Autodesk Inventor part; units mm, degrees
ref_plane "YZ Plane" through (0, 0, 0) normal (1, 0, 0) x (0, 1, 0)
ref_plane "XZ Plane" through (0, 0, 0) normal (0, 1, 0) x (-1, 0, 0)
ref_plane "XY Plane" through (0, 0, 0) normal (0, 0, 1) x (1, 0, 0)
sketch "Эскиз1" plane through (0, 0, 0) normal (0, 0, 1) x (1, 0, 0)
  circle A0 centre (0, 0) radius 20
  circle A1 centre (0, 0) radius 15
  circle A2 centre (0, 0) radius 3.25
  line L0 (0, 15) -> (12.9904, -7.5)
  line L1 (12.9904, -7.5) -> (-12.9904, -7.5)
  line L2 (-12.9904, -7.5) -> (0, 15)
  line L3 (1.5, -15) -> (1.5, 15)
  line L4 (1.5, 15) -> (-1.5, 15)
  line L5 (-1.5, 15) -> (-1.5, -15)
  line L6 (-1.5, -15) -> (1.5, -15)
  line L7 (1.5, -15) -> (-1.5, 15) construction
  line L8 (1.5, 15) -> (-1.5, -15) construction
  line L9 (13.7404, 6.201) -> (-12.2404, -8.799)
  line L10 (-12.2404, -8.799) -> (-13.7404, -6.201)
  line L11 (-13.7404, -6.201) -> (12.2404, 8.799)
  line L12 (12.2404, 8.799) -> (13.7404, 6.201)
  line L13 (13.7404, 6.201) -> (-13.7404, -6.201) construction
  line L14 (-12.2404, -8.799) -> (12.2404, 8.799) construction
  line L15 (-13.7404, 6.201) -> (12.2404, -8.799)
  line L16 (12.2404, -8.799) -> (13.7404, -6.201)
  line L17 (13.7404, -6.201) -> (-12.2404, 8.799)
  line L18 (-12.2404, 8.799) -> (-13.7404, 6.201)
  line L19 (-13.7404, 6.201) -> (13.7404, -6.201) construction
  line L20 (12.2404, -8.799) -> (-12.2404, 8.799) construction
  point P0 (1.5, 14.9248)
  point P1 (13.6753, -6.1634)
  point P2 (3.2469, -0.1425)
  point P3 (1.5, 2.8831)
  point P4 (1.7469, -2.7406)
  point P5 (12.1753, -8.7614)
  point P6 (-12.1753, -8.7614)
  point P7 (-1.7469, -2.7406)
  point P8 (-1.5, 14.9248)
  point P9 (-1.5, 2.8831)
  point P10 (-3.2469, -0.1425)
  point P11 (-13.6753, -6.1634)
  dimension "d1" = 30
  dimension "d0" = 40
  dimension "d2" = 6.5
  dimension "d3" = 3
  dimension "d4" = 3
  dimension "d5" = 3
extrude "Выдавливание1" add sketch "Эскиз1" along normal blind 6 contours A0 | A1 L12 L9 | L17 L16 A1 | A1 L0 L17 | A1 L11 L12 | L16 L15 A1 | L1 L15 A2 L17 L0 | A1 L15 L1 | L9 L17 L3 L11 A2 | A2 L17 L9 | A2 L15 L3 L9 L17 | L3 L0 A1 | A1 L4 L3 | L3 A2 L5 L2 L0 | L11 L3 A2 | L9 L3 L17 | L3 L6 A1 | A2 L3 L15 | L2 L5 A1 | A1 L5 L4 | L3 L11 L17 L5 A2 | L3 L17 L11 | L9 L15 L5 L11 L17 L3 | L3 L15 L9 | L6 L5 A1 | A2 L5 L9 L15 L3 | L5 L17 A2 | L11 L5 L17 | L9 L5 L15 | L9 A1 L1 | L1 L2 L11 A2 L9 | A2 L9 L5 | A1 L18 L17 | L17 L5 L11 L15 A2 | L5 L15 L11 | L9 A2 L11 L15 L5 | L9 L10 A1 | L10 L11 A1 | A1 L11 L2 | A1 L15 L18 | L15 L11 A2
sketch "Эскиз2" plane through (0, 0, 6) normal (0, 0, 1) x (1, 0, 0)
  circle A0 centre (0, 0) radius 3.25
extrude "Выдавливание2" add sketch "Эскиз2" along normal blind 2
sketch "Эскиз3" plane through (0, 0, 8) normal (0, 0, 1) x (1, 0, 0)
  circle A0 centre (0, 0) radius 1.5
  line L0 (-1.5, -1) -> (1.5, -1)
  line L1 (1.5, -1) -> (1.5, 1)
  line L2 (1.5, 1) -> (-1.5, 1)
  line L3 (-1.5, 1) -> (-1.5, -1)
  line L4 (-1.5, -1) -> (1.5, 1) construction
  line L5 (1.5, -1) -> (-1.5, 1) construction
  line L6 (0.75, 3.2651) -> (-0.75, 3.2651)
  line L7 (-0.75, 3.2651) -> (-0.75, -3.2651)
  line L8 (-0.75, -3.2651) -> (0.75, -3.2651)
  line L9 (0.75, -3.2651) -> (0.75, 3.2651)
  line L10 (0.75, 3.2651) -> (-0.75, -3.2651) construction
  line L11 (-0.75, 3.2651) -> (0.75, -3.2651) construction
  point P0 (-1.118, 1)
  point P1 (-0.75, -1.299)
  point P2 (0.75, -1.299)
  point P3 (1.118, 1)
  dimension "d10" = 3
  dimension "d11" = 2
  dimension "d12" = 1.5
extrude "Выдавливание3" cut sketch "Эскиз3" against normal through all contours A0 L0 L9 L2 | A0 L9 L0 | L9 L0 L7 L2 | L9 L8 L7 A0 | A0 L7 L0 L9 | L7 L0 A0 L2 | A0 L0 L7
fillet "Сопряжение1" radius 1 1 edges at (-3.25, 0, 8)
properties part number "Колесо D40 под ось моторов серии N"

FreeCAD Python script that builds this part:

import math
import FreeCAD as App
import Part
import Sketcher
from FreeCAD import Vector
Q = App.Units.Quantity


def edges_at(feature, points):
    """Names of the edges that pass closest to the given points."""
    edges = feature.Shape.Edges
    near = lambda p: min(range(len(edges)), key=lambda i: edges[i].distToShape(Part.Vertex(*p))[0])
    return sorted({f"Edge{near(p) + 1}" for p in points})

doc = App.newDocument("Part")
body = doc.addObject("PartDesign::Body", "Body")

# Sketch on XY plane
sketch1 = doc.addObject("Sketcher::SketchObject", "Sketch")
body.addObject(sketch1)
sketch1.AttachmentSupport = (doc.XY_Plane, [""])
sketch1.MapMode = "FlatFace"
sketch1.addGeometry(Part.Circle(Vector(0, 0, 0), Vector(0, 0, 1), 20), False)
sketch1.addGeometry(Part.LineSegment(Vector(13.7, -6.2, 0), Vector(3.2, -0.1, 0)), False)
sketch1.addGeometry(Part.ArcOfCircle(Part.Circle(Vector(0, 0, 0), Vector(0, 0, 1), 3.2), math.radians(-3), math.radians(63)), False)
sketch1.addGeometry(Part.LineSegment(Vector(1.5, 2.9, 0), Vector(1.5, 14.9, 0)), False)
sketch1.addGeometry(Part.ArcOfCircle(Part.Circle(Vector(0, 0, 0), Vector(0, 0, 1), 15), math.radians(-24), math.radians(84)), False)
sketch1.addGeometry(Part.LineSegment(Vector(-1.5, 14.9, 0), Vector(-1.5, 2.9, 0)), False)
sketch1.addGeometry(Part.ArcOfCircle(Part.Circle(Vector(0, 0, 0), Vector(0, 0, 1), 3.2), math.radians(117), math.radians(183)), False)
sketch1.addGeometry(Part.LineSegment(Vector(-3.2, -0.1, 0), Vector(-13.7, -6.2, 0)), False)
sketch1.addGeometry(Part.ArcOfCircle(Part.Circle(Vector(0, 0, 0), Vector(0, 0, 1), 15), math.radians(96), math.radians(204)), False)
sketch1.addGeometry(Part.LineSegment(Vector(-12.2, -8.8, 0), Vector(-1.7, -2.7, 0)), False)
sketch1.addGeometry(Part.ArcOfCircle(Part.Circle(Vector(0, 0, 0), Vector(0, 0, 1), 3.2), math.radians(-123), math.radians(-57)), False)
sketch1.addGeometry(Part.LineSegment(Vector(1.7, -2.7, 0), Vector(12.2, -8.8, 0)), False)
sketch1.addGeometry(Part.ArcOfCircle(Part.Circle(Vector(0, 0, 0), Vector(0, 0, 1), 15), math.radians(-144), math.radians(-36)), False)
sketch1.addConstraint(Sketcher.Constraint("Coincident", 1, 2, 2, 1))
sketch1.addConstraint(Sketcher.Constraint("Coincident", 2, 2, 3, 1))
sketch1.addConstraint(Sketcher.Constraint("Coincident", 3, 2, 4, 2))
sketch1.addConstraint(Sketcher.Constraint("Coincident", 4, 1, 1, 1))
sketch1.addConstraint(Sketcher.Constraint("Coincident", 5, 2, 6, 1))
sketch1.addConstraint(Sketcher.Constraint("Coincident", 6, 2, 7, 1))
sketch1.addConstraint(Sketcher.Constraint("Coincident", 7, 2, 8, 2))
sketch1.addConstraint(Sketcher.Constraint("Coincident", 8, 1, 5, 1))
sketch1.addConstraint(Sketcher.Constraint("Coincident", 9, 2, 10, 1))
sketch1.addConstraint(Sketcher.Constraint("Coincident", 10, 2, 11, 1))
sketch1.addConstraint(Sketcher.Constraint("Coincident", 11, 2, 12, 2))
sketch1.addConstraint(Sketcher.Constraint("Coincident", 12, 1, 9, 1))
sketch1.addConstraint(Sketcher.Constraint("Vertical", 3))
sketch1.addConstraint(Sketcher.Constraint("Vertical", 5))
sketch1.addConstraint(Sketcher.Constraint("Coincident", 0, 3, -1, 1))
sketch1.addConstraint(Sketcher.Constraint("Coincident", 2, 3, -1, 1))
sketch1.addConstraint(Sketcher.Constraint("Coincident", 4, 3, -1, 1))
sketch1.addConstraint(Sketcher.Constraint("Coincident", 6, 3, -1, 1))
sketch1.addConstraint(Sketcher.Constraint("Coincident", 8, 3, -1, 1))
sketch1.addConstraint(Sketcher.Constraint("Coincident", 10, 3, -1, 1))
sketch1.addConstraint(Sketcher.Constraint("Coincident", 12, 3, -1, 1))
sketch1.addConstraint(Sketcher.Constraint("Equal", 2, 6))
sketch1.addConstraint(Sketcher.Constraint("Equal", 4, 8))
sketch1.addConstraint(Sketcher.Constraint("Equal", 6, 10))
sketch1.addConstraint(Sketcher.Constraint("Equal", 8, 12))
sketch1.addConstraint(Sketcher.Constraint("Parallel", 7, 9))
sketch1.addConstraint(Sketcher.Constraint("Parallel", 1, 11))
sketch1.addConstraint(Sketcher.Constraint("Horizontal", 2, 2, 5, 2))
sketch1.addConstraint(Sketcher.Constraint("Horizontal", 1, 2, 6, 2))
sketch1.addConstraint(Sketcher.Constraint("Horizontal", 4, 1, 7, 2))
sketch1.addConstraint(Sketcher.Constraint("Horizontal", 9, 2, 10, 2))
sketch1.addConstraint(Sketcher.Constraint("Equal", 7, 9))
sketch1.addConstraint(Sketcher.Constraint("Diameter", 0, Q("40 mm")))
sketch1.addConstraint(Sketcher.Constraint("Radius", 4, Q("15 mm")))
sketch1.addConstraint(Sketcher.Constraint("Angle", 9, Q("30 deg")))
sketch1.addConstraint(Sketcher.Constraint("Radius", 2, Q("3.25 mm")))
sketch1.addConstraint(Sketcher.Constraint("DistanceX", 5, 2, 2, 2, Q("3 mm")))
sketch1.addConstraint(Sketcher.Constraint("DistanceX", 6, 2, 9, 2, Q("1.5 mm")))
pad1 = doc.addObject("PartDesign::Pad", "Pad")
body.addObject(pad1)
pad1.Profile = sketch1
pad1.Length = 6

# Sketch on XY plane
sketch2 = doc.addObject("Sketcher::SketchObject", "Sketch001")
body.addObject(sketch2)
sketch2.AttachmentSupport = (doc.XY_Plane, [""])
sketch2.MapMode = "FlatFace"
sketch2.AttachmentOffset = App.Placement(Vector(0, 0, 6), App.Rotation())
sketch2.addGeometry(Part.Circle(Vector(0, 0, 0), Vector(0, 0, 1), 3.2), False)
sketch2.addConstraint(Sketcher.Constraint("Coincident", 0, 3, -1, 1))
sketch2.addConstraint(Sketcher.Constraint("Diameter", 0, Q("6.5 mm")))
pad2 = doc.addObject("PartDesign::Pad", "Pad001")
body.addObject(pad2)
pad2.Profile = sketch2
pad2.Length = 2

# Sketch on XY plane
sketch3 = doc.addObject("Sketcher::SketchObject", "Sketch002")
body.addObject(sketch3)
sketch3.AttachmentSupport = (doc.XY_Plane, [""])
sketch3.MapMode = "FlatFace"
sketch3.AttachmentOffset = App.Placement(Vector(0, 0, 8), App.Rotation())
sketch3.addGeometry(Part.LineSegment(Vector(1.1, 1, 0), Vector(-1.1, 1, 0)), False)
sketch3.addGeometry(Part.ArcOfCircle(Part.Circle(Vector(0, 0, 0), Vector(0, 0, 1), 1.5), math.radians(138), math.radians(240)), False)
sketch3.addGeometry(Part.LineSegment(Vector(-0.8, -1.3, 0), Vector(-0.8, -3.3, 0)), False)
sketch3.addGeometry(Part.LineSegment(Vector(-0.8, -3.3, 0), Vector(0.8, -3.3, 0)), False)
sketch3.addGeometry(Part.LineSegment(Vector(0.8, -3.3, 0), Vector(0.8, -1.3, 0)), False)
sketch3.addGeometry(Part.ArcOfCircle(Part.Circle(Vector(0, 0, 0), Vector(0, 0, 1), 1.5), math.radians(-60), math.radians(42)), False)
sketch3.addConstraint(Sketcher.Constraint("Coincident", 0, 2, 1, 1))
sketch3.addConstraint(Sketcher.Constraint("Coincident", 1, 2, 2, 1))
sketch3.addConstraint(Sketcher.Constraint("Coincident", 2, 2, 3, 1))
sketch3.addConstraint(Sketcher.Constraint("Coincident", 3, 2, 4, 1))
sketch3.addConstraint(Sketcher.Constraint("Coincident", 4, 2, 5, 1))
sketch3.addConstraint(Sketcher.Constraint("Coincident", 5, 2, 0, 1))
sketch3.addConstraint(Sketcher.Constraint("Horizontal", 0))
sketch3.addConstraint(Sketcher.Constraint("Vertical", 2))
sketch3.addConstraint(Sketcher.Constraint("Horizontal", 3))
sketch3.addConstraint(Sketcher.Constraint("Vertical", 4))
sketch3.addConstraint(Sketcher.Constraint("Coincident", 1, 3, -1, 1))
sketch3.addConstraint(Sketcher.Constraint("Coincident", 5, 3, -1, 1))
sketch3.addConstraint(Sketcher.Constraint("Equal", 1, 5))
sketch3.addConstraint(Sketcher.Constraint("Horizontal", 1, 2, 4, 2))
sketch3.addConstraint(Sketcher.Constraint("Radius", 1, Q("1.5 mm")))
sketch3.addConstraint(Sketcher.Constraint("DistanceX", 3, 1, 3, 2, Q("1.5 mm")))
sketch3.addConstraint(Sketcher.Constraint("DistanceY", -1, 1, 0, 2, Q("1 mm")))
sketch3.addConstraint(Sketcher.Constraint("DistanceY", 2, 2, 2, 1, Q("1.966 mm")))
pocket1 = doc.addObject("PartDesign::Pocket", "Pocket")
body.addObject(pocket1)
pocket1.Profile = sketch3
pocket1.Type = "ThroughAll"
doc.recompute()

fillet = doc.addObject("PartDesign::Fillet", "Fillet")
body.addObject(fillet)
fillet.Base = (pocket1, edges_at(pocket1, [(-3.25, 0, 8)]))
fillet.Radius = 1

doc.recompute()
